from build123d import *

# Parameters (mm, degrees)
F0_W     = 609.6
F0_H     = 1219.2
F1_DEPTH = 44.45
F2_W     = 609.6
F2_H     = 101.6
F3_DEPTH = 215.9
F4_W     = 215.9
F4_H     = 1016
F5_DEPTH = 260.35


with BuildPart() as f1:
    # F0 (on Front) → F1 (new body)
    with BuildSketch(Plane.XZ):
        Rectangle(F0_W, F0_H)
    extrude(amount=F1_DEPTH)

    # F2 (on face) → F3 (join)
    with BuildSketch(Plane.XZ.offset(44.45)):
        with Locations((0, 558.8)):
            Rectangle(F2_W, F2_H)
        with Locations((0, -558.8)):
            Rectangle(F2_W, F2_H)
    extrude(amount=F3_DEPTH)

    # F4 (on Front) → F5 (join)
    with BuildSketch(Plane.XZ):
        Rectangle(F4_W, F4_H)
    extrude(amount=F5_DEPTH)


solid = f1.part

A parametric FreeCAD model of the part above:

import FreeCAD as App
import Part
import Sketcher
from FreeCAD import Vector
Q = App.Units.Quantity

doc = App.newDocument("Part")
body = doc.addObject("PartDesign::Body", "Body")

sketch1 = body.newObject("Sketcher::SketchObject", "Sketch")
sketch1.AttachmentSupport = (doc.getObject("XZ_Plane"), [""])
sketch1.MapMode = "FlatFace"
sketch1.addGeometry(Part.LineSegment(Vector(-304.8, 609.6, 0), Vector(-304.8, -609.6, 0)), False)
sketch1.addGeometry(Part.LineSegment(Vector(-304.8, -609.6, 0), Vector(304.8, -609.6, 0)), False)
sketch1.addGeometry(Part.LineSegment(Vector(304.8, -609.6, 0), Vector(304.8, 609.6, 0)), False)
sketch1.addGeometry(Part.LineSegment(Vector(304.8, 609.6, 0), Vector(-304.8, 609.6, 0)), False)
sketch1.addConstraint(Sketcher.Constraint("Coincident", 0, 2, 1, 1))
sketch1.addConstraint(Sketcher.Constraint("Coincident", 1, 2, 2, 1))
sketch1.addConstraint(Sketcher.Constraint("Coincident", 2, 2, 3, 1))
sketch1.addConstraint(Sketcher.Constraint("Coincident", 3, 2, 0, 1))
sketch1.addConstraint(Sketcher.Constraint("Vertical", 0))
sketch1.addConstraint(Sketcher.Constraint("Horizontal", 1))
sketch1.addConstraint(Sketcher.Constraint("Vertical", 2))
sketch1.addConstraint(Sketcher.Constraint("Horizontal", 3))
sketch1.addConstraint(Sketcher.Constraint("Symmetric", 0, 2, 2, 2, -1, 1))
sketch1.addConstraint(Sketcher.Constraint("DistanceX", 1, 1, 1, 2, Q("24 in")))
sketch1.addConstraint(Sketcher.Constraint("DistanceY", 0, 2, 0, 1, Q("48 in")))
pad1 = body.newObject("PartDesign::Pad", "Pad")
pad1.Profile = sketch1
pad1.Length = Q("1.75 in")

sketch2 = body.newObject("Sketcher::SketchObject", "Sketch001")
sketch2.AttachmentSupport = (doc.getObject("XZ_Plane"), [""])
sketch2.MapMode = "FlatFace"
sketch2.AttachmentOffset = App.Placement(Vector(0, 0, 1.75 * 25.4), App.Rotation())
sketch2.addGeometry(Part.LineSegment(Vector(-304.8, 609.6, 0), Vector(-304.8, 508, 0)), False)
sketch2.addGeometry(Part.LineSegment(Vector(-304.8, 508, 0), Vector(304.8, 508, 0)), False)
sketch2.addGeometry(Part.LineSegment(Vector(304.8, 508, 0), Vector(304.8, 609.6, 0)), False)
sketch2.addGeometry(Part.LineSegment(Vector(304.8, 609.6, 0), Vector(-304.8, 609.6, 0)), False)
sketch2.addGeometry(Part.LineSegment(Vector(-304.8, -508, 0), Vector(-304.8, -609.6, 0)), False)
sketch2.addGeometry(Part.LineSegment(Vector(-304.8, -609.6, 0), Vector(304.8, -609.6, 0)), False)
sketch2.addGeometry(Part.LineSegment(Vector(304.8, -609.6, 0), Vector(304.8, -508, 0)), False)
sketch2.addGeometry(Part.LineSegment(Vector(304.8, -508, 0), Vector(-304.8, -508, 0)), False)
sketch2.addConstraint(Sketcher.Constraint("Coincident", 0, 2, 1, 1))
sketch2.addConstraint(Sketcher.Constraint("Coincident", 1, 2, 2, 1))
sketch2.addConstraint(Sketcher.Constraint("Coincident", 2, 2, 3, 1))
sketch2.addConstraint(Sketcher.Constraint("Coincident", 3, 2, 0, 1))
sketch2.addConstraint(Sketcher.Constraint("Coincident", 4, 2, 5, 1))
sketch2.addConstraint(Sketcher.Constraint("Coincident", 5, 2, 6, 1))
sketch2.addConstraint(Sketcher.Constraint("Coincident", 6, 2, 7, 1))
sketch2.addConstraint(Sketcher.Constraint("Coincident", 7, 2, 4, 1))
sketch2.addConstraint(Sketcher.Constraint("Vertical", 0))
sketch2.addConstraint(Sketcher.Constraint("Horizontal", 1))
sketch2.addConstraint(Sketcher.Constraint("Vertical", 2))
sketch2.addConstraint(Sketcher.Constraint("Horizontal", 3))
sketch2.addConstraint(Sketcher.Constraint("Vertical", 4))
sketch2.addConstraint(Sketcher.Constraint("Horizontal", 5))
sketch2.addConstraint(Sketcher.Constraint("Vertical", 6))
sketch2.addConstraint(Sketcher.Constraint("Horizontal", 7))
sketch2.addConstraint(Sketcher.Constraint("Symmetric", 2, 2, 4, 2, -1, 1))
sketch2.addConstraint(Sketcher.Constraint("Symmetric", 0, 2, 6, 2, -1, 1))
sketch2.addConstraint(Sketcher.Constraint("Vertical", 3, 2, 4, 2))
sketch2.addConstraint(Sketcher.Constraint("DistanceX", 1, 1, 1, 2, Q("24 in")))
sketch2.addConstraint(Sketcher.Constraint("DistanceY", 0, 2, 0, 1, Q("4 in")))
sketch2.addConstraint(Sketcher.Constraint("DistanceY", -1, 1, 0, 2, Q("20 in")))
pad2 = body.newObject("PartDesign::Pad", "Pad001")
pad2.Profile = sketch2
pad2.Length = Q("8.5 in")

sketch3 = body.newObject("Sketcher::SketchObject", "Sketch002")
sketch3.AttachmentSupport = (doc.getObject("XZ_Plane"), [""])
sketch3.MapMode = "FlatFace"
sketch3.addGeometry(Part.LineSegment(Vector(-107.95, 508, 0), Vector(-107.95, -508, 0)), False)
sketch3.addGeometry(Part.LineSegment(Vector(-107.95, -508, 0), Vector(107.95, -508, 0)), False)
sketch3.addGeometry(Part.LineSegment(Vector(107.95, -508, 0), Vector(107.95, 508, 0)), False)
sketch3.addGeometry(Part.LineSegment(Vector(107.95, 508, 0), Vector(-107.95, 508, 0)), False)
sketch3.addConstraint(Sketcher.Constraint("Coincident", 0, 2, 1, 1))
sketch3.addConstraint(Sketcher.Constraint("Coincident", 1, 2, 2, 1))
sketch3.addConstraint(Sketcher.Constraint("Coincident", 2, 2, 3, 1))
sketch3.addConstraint(Sketcher.Constraint("Coincident", 3, 2, 0, 1))
sketch3.addConstraint(Sketcher.Constraint("Vertical", 0))
sketch3.addConstraint(Sketcher.Constraint("Horizontal", 1))
sketch3.addConstraint(Sketcher.Constraint("Vertical", 2))
sketch3.addConstraint(Sketcher.Constraint("Horizontal", 3))
sketch3.addConstraint(Sketcher.Constraint("Symmetric", 0, 2, 2, 2, -1, 1))
sketch3.addConstraint(Sketcher.Constraint("DistanceY", 0, 2, 0, 1, Q("40 in")))
sketch3.addConstraint(Sketcher.Constraint("DistanceX", 1, 1, 1, 2, Q("8.5 in")))
pad3 = body.newObject("PartDesign::Pad", "Pad002")
pad3.Profile = sketch3
pad3.Length = Q("10.25 in")

doc.recompute()
